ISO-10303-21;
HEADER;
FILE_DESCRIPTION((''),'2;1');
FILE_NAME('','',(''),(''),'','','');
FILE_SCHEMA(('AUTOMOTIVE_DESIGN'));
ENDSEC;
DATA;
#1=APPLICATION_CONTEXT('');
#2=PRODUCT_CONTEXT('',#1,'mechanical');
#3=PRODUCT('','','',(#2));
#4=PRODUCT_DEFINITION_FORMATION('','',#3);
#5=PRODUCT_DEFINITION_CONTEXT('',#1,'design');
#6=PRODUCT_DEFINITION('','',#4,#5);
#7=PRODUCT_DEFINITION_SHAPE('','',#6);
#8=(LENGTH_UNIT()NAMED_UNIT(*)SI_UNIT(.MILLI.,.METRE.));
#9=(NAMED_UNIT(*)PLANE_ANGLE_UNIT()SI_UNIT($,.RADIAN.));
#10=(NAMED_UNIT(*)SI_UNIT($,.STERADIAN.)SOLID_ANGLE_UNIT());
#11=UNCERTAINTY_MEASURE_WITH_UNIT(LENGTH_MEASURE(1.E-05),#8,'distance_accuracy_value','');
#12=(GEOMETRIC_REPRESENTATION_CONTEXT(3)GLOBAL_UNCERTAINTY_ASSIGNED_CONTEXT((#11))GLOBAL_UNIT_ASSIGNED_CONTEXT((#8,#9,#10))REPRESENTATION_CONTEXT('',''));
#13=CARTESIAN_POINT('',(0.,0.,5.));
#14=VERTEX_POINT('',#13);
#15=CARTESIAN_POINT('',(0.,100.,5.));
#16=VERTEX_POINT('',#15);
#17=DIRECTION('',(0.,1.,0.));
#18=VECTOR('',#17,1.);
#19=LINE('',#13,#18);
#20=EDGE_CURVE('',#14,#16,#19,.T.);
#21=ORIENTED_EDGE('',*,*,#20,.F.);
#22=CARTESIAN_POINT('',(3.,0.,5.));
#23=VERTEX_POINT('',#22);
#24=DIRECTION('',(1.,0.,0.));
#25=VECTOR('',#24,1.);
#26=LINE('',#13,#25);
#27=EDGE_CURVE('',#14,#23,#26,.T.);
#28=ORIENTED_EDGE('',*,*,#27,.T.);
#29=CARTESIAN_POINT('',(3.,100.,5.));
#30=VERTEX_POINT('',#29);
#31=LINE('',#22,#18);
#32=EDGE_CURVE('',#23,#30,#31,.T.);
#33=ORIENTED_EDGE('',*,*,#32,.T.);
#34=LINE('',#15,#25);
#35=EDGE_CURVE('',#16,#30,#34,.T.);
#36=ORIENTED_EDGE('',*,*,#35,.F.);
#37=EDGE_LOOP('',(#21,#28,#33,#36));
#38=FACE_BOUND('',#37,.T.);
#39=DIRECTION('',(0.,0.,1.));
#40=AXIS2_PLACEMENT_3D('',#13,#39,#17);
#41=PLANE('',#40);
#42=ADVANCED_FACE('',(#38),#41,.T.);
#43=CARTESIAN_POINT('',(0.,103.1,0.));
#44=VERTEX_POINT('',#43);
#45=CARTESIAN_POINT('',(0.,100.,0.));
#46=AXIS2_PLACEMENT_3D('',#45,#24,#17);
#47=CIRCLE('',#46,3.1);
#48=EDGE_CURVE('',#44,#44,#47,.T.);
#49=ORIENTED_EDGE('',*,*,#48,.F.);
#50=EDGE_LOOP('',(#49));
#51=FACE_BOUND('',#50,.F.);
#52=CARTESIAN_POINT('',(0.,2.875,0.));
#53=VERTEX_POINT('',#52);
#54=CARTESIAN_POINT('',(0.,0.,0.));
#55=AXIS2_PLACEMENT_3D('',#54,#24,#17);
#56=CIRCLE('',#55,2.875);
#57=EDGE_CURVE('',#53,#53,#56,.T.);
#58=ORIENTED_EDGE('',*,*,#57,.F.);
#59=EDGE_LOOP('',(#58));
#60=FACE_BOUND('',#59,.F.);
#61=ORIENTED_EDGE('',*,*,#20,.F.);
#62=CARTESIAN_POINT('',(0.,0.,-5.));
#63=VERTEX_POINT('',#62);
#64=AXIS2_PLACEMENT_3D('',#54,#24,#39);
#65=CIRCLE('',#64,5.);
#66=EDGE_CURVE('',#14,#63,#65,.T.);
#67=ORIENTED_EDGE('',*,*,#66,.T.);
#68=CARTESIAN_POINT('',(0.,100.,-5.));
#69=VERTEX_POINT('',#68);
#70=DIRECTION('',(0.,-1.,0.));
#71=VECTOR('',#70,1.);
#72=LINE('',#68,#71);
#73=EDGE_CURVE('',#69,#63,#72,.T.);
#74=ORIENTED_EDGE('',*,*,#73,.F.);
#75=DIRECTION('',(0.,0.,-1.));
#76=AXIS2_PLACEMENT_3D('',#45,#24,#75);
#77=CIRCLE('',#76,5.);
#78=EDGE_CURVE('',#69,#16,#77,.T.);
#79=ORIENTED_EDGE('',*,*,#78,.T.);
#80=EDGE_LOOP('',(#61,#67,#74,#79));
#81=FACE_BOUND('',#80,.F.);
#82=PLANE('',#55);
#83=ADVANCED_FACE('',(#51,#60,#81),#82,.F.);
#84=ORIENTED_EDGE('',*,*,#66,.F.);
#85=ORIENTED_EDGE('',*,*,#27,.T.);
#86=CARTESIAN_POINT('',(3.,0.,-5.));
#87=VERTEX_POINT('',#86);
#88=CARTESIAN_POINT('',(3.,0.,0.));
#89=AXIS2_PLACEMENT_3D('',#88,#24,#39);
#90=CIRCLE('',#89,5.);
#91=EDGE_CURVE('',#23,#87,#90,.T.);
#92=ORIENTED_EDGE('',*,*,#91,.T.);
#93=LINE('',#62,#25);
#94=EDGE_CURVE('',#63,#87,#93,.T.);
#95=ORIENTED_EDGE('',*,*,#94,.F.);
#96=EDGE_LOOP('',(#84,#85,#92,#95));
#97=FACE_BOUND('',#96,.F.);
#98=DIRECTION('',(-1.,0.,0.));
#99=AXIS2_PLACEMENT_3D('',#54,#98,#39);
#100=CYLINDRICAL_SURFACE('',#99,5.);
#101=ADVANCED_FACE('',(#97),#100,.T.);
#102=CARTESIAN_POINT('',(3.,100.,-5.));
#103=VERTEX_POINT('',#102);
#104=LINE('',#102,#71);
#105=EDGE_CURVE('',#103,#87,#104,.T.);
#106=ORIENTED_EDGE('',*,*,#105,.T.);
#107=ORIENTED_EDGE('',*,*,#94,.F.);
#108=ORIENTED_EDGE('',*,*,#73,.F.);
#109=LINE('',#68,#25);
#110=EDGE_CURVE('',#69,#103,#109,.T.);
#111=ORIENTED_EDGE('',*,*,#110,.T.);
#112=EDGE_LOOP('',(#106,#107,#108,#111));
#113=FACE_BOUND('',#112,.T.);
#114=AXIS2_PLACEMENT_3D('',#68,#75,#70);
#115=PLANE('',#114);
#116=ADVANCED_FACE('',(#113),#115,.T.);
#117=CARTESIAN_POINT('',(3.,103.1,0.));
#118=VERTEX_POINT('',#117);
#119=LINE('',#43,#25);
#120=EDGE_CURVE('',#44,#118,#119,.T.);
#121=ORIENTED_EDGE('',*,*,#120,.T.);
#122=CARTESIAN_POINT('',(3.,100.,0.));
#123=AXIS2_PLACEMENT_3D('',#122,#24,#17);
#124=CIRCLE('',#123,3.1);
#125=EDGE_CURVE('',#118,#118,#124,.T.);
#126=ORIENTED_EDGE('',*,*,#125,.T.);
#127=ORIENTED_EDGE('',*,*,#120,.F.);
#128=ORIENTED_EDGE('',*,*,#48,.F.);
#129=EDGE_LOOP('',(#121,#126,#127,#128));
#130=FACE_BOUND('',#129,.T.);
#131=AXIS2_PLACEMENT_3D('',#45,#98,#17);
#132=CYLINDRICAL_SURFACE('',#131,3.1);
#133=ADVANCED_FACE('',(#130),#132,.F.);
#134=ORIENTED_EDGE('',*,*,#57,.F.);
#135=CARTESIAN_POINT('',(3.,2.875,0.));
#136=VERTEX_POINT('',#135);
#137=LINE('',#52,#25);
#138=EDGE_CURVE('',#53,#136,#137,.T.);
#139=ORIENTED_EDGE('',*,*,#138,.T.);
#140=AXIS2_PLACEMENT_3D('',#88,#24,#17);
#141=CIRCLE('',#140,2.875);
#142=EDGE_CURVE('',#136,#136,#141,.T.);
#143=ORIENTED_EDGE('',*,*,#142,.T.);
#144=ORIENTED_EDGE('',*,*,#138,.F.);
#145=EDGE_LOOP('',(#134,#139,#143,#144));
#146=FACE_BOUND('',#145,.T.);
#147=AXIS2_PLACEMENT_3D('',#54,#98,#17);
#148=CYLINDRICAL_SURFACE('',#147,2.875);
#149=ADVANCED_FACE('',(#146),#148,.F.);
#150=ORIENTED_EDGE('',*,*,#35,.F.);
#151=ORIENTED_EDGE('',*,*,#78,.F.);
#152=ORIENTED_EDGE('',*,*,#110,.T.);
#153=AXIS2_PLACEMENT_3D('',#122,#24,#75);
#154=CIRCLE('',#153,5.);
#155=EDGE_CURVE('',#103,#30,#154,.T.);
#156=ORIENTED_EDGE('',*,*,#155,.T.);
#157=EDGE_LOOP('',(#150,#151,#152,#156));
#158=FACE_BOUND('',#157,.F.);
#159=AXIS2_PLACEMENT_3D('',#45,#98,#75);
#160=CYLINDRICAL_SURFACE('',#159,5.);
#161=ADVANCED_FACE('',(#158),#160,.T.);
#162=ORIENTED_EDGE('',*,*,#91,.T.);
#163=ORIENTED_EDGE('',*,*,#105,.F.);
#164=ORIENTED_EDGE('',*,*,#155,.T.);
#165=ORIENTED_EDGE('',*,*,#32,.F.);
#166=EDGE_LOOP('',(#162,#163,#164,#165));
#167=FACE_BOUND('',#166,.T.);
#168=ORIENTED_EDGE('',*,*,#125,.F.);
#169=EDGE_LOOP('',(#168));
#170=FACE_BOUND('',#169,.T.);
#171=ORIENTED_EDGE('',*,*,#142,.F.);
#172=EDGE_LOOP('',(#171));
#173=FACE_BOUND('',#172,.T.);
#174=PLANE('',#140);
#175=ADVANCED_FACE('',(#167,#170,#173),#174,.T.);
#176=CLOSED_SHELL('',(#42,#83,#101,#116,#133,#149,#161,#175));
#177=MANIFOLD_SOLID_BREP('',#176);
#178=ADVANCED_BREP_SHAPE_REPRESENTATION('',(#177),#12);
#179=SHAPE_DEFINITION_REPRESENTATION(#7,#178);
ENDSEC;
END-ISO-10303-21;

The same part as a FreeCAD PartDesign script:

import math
import FreeCAD as App
import Part
import Sketcher
Q = App.Units.Quantity

doc = App.newDocument("Part")
body = doc.addObject("PartDesign::Body", "Body")

# Sketch on YZ plane
sketch1 = body.newObject("Sketcher::SketchObject", "Sketch")
sketch1.AttachmentSupport = (doc.getObject("YZ_Plane"), [""])
sketch1.MapMode = "FlatFace"
sketch1.addGeometry(Part.LineSegment(App.Vector(100, 5, 0), App.Vector(0, 5, 0)), False)
sketch1.addGeometry(Part.ArcOfCircle(Part.Circle(App.Vector(0, 0, 0), App.Vector(0, 0, 1), 5), math.radians(90), math.radians(270)), False)
sketch1.addGeometry(Part.LineSegment(App.Vector(0, -5, 0), App.Vector(100, -5, 0)), False)
sketch1.addGeometry(Part.ArcOfCircle(Part.Circle(App.Vector(100, 0, 0), App.Vector(0, 0, 1), 5), math.radians(-90), math.radians(90)), False)
sketch1.addGeometry(Part.Circle(App.Vector(0, 0, 0), App.Vector(0, 0, 1), 2.9), False)
sketch1.addGeometry(Part.Circle(App.Vector(100, 0, 0), App.Vector(0, 0, 1), 3.1), False)
sketch1.addConstraint(Sketcher.Constraint("Tangent", 0, 2, 1, 1))
sketch1.addConstraint(Sketcher.Constraint("Tangent", 1, 2, 2, 1))
sketch1.addConstraint(Sketcher.Constraint("Tangent", 2, 2, 3, 1))
sketch1.addConstraint(Sketcher.Constraint("Tangent", 3, 2, 0, 1))
sketch1.addConstraint(Sketcher.Constraint("Horizontal", 0))
sketch1.addConstraint(Sketcher.Constraint("Horizontal", 2))
sketch1.addConstraint(Sketcher.Constraint("Coincident", 1, 3, -1, 1))
sketch1.addConstraint(Sketcher.Constraint("Coincident", 4, 3, -1, 1))
sketch1.addConstraint(Sketcher.Constraint("Coincident", 5, 3, 3, 3))
sketch1.addConstraint(Sketcher.Constraint("Diameter", 5, Q("0.2441 in")))
sketch1.addConstraint(Sketcher.Constraint("Diameter", 4, Q("5.75 mm")))
sketch1.addConstraint(Sketcher.Constraint("DistanceX", 0, 2, 0, 1, Q("3.937 in")))
sketch1.addConstraint(Sketcher.Constraint("Radius", 1, Q("5 mm")))
pad1 = body.newObject("PartDesign::Pad", "Pad")
pad1.Profile = sketch1
pad1.Length = Q("0.1181102 in")

doc.recompute()
